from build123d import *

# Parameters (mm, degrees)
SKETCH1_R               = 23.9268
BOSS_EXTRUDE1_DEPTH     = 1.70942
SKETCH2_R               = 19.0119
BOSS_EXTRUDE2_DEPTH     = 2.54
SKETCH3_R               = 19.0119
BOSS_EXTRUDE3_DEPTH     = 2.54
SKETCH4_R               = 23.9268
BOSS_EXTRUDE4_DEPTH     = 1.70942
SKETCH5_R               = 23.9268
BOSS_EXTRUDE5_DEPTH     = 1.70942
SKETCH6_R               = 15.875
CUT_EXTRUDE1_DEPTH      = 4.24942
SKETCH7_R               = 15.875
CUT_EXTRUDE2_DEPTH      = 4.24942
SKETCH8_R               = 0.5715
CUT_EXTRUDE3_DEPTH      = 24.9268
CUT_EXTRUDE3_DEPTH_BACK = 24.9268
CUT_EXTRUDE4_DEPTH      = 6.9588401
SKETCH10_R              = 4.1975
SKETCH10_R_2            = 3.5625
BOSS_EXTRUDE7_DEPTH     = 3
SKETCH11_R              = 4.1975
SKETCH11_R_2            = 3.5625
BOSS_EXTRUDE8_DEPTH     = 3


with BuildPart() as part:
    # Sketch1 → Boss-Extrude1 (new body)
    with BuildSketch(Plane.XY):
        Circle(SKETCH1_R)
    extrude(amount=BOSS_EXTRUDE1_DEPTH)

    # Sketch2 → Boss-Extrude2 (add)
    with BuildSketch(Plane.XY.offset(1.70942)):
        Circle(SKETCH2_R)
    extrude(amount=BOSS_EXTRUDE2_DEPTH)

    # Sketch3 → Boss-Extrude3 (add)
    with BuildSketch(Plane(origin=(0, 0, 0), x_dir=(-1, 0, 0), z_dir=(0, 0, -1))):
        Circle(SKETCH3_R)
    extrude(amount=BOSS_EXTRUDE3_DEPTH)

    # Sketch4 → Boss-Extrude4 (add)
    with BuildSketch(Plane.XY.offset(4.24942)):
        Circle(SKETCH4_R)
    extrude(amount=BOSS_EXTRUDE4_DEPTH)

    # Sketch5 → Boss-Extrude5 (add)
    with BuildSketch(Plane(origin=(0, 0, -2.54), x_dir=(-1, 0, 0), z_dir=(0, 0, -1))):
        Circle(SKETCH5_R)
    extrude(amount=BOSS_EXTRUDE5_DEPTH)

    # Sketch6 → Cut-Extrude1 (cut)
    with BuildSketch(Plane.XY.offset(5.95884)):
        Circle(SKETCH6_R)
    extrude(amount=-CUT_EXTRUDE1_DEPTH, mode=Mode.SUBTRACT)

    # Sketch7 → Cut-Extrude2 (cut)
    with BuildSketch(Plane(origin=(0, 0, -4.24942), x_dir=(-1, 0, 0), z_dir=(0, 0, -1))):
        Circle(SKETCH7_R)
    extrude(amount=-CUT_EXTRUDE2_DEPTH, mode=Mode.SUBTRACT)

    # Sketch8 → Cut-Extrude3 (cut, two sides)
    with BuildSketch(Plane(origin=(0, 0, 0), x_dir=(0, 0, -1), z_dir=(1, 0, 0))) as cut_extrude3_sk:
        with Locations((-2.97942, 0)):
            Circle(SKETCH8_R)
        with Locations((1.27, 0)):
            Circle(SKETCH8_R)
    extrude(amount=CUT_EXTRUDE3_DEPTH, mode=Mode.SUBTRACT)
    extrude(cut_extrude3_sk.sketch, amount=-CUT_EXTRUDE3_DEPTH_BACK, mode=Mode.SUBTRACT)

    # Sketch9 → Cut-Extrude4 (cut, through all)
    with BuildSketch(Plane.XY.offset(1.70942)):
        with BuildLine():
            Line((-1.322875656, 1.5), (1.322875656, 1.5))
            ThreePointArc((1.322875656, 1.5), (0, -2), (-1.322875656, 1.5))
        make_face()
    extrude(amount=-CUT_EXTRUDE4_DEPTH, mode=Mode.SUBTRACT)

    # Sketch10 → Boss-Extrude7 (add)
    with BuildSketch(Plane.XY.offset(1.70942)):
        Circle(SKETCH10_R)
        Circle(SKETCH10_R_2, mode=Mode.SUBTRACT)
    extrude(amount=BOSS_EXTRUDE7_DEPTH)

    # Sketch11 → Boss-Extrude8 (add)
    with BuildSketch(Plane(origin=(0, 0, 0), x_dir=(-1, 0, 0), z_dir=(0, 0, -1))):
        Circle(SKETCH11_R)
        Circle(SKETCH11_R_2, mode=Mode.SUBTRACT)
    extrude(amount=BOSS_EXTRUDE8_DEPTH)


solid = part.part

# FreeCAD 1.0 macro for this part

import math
import FreeCAD as App
import Part
import Sketcher

V = App.Vector
Q = App.Units.Quantity

doc = App.newDocument("Part")
params = doc.addObject("Spreadsheet::Sheet", "Params")
for row, (alias, value) in enumerate([
    ("sketch1_diameter", "1.884 in"),
    ("pad1_length", "0.0673 in"),
    ("sketch2_diameter", "1.497 in"),
    ("pad2_length", "0.1 in"),
    ("sketch3_diameter", "1.497 in"),
    ("pad3_length", "0.1 in"),
    ("sketch4_diameter", "1.884 in"),
    ("pad4_length", "0.0673 in"),
    ("sketch5_diameter", "1.884 in"),
    ("pad5_length", "0.0673 in"),
    ("sketch6_diameter", "1.25 in"),
    ("pocket1_length", "0.1673 in"),
    ("sketch7_diameter", "1.25 in"),
    ("pocket2_length", "0.1673 in"),
    ("sketch8_diameter", "0.045 in"),
    ("pad6_length", "3 mm"),
    ("pad7_length", "3 mm"),
], start=1):
    params.set(f"A{row}", alias)
    params.set(f"B{row}", "=" + value)
    params.setAlias(f"B{row}", alias)

body = doc.addObject("PartDesign::Body", "Body")

# Sketch on XY plane
sketch1 = body.newObject("Sketcher::SketchObject", "Sketch")
sketch1.AttachmentSupport = (doc.getObject("XY_Plane"), [""])
sketch1.MapMode = "FlatFace"
sketch1.addGeometry(Part.Circle(V(0, 0, 0), V(0, 0, 1), 24), False)
sketch1.addConstraint([
    Sketcher.Constraint("Coincident", 0, 3, -1, 1),
    Sketcher.Constraint("Diameter", 0, Q("1.884 in")),
])
sketch1.setExpression("Constraints[1]", "Params.sketch1_diameter")
pad1 = body.newObject("PartDesign::Pad", "Pad")
pad1.Profile = sketch1
pad1.setExpression("Length", "Params.pad1_length")

# Sketch on XY plane
sketch2 = body.newObject("Sketcher::SketchObject", "Sketch001")
sketch2.AttachmentSupport = (doc.getObject("XY_Plane"), [""])
sketch2.MapMode = "FlatFace"
sketch2.AttachmentOffset = App.Placement(V(0, 0, 0.0673 * 25.4), App.Rotation())
sketch2.addGeometry(Part.Circle(V(0, 0, 0), V(0, 0, 1), 19), False)
sketch2.addConstraint([
    Sketcher.Constraint("Coincident", 0, 3, -1, 1),
    Sketcher.Constraint("Diameter", 0, Q("1.497 in")),
])
sketch2.setExpression("Constraints[1]", "Params.sketch2_diameter")
pad2 = body.newObject("PartDesign::Pad", "Pad001")
pad2.Profile = sketch2
pad2.setExpression("Length", "Params.pad2_length")

# Sketch on XY plane
sketch3 = body.newObject("Sketcher::SketchObject", "Sketch002")
sketch3.AttachmentSupport = (doc.getObject("XY_Plane"), [""])
sketch3.MapMode = "FlatFace"
sketch3.addGeometry(Part.Circle(V(0, 0, 0), V(0, 0, 1), 19), False)
sketch3.addConstraint([
    Sketcher.Constraint("Coincident", 0, 3, -1, 1),
    Sketcher.Constraint("Diameter", 0, Q("1.497 in")),
])
sketch3.setExpression("Constraints[1]", "Params.sketch3_diameter")
pad3 = body.newObject("PartDesign::Pad", "Pad002")
pad3.Profile = sketch3
pad3.setExpression("Length", "Params.pad3_length")
pad3.Reversed = True

# Sketch on XY plane
sketch4 = body.newObject("Sketcher::SketchObject", "Sketch003")
sketch4.AttachmentSupport = (doc.getObject("XY_Plane"), [""])
sketch4.MapMode = "FlatFace"
sketch4.AttachmentOffset = App.Placement(V(0, 0, 0.1673 * 25.4), App.Rotation())
sketch4.addGeometry(Part.Circle(V(0, 0, 0), V(0, 0, 1), 24), False)
sketch4.addConstraint([
    Sketcher.Constraint("Coincident", 0, 3, -1, 1),
    Sketcher.Constraint("Diameter", 0, Q("1.884 in")),
])
sketch4.setExpression("Constraints[1]", "Params.sketch4_diameter")
pad4 = body.newObject("PartDesign::Pad", "Pad003")
pad4.Profile = sketch4
pad4.setExpression("Length", "Params.pad4_length")

# Sketch on XY plane
sketch5 = body.newObject("Sketcher::SketchObject", "Sketch004")
sketch5.AttachmentSupport = (doc.getObject("XY_Plane"), [""])
sketch5.MapMode = "FlatFace"
sketch5.AttachmentOffset = App.Placement(V(0, 0, -0.1 * 25.4), App.Rotation())
sketch5.addGeometry(Part.Circle(V(0, 0, 0), V(0, 0, 1), 24), False)
sketch5.addConstraint([
    Sketcher.Constraint("Coincident", 0, 3, -1, 1),
    Sketcher.Constraint("Diameter", 0, Q("1.884 in")),
])
sketch5.setExpression("Constraints[1]", "Params.sketch5_diameter")
pad5 = body.newObject("PartDesign::Pad", "Pad004")
pad5.Profile = sketch5
pad5.setExpression("Length", "Params.pad5_length")
pad5.Reversed = True

# Sketch on XY plane
sketch6 = body.newObject("Sketcher::SketchObject", "Sketch005")
sketch6.AttachmentSupport = (doc.getObject("XY_Plane"), [""])
sketch6.MapMode = "FlatFace"
sketch6.AttachmentOffset = App.Placement(V(0, 0, 0.2346 * 25.4), App.Rotation())
sketch6.addGeometry(Part.Circle(V(0, 0, 0), V(0, 0, 1), 16), False)
sketch6.addConstraint([
    Sketcher.Constraint("Coincident", 0, 3, -1, 1),
    Sketcher.Constraint("Diameter", 0, Q("1.25 in")),
])
sketch6.setExpression("Constraints[1]", "Params.sketch6_diameter")
pocket1 = body.newObject("PartDesign::Pocket", "Pocket")
pocket1.Profile = sketch6
pocket1.setExpression("Length", "Params.pocket1_length")

# Sketch on XY plane
sketch7 = body.newObject("Sketcher::SketchObject", "Sketch006")
sketch7.AttachmentSupport = (doc.getObject("XY_Plane"), [""])
sketch7.MapMode = "FlatFace"
sketch7.AttachmentOffset = App.Placement(V(0, 0, -0.1673 * 25.4), App.Rotation())
sketch7.addGeometry(Part.Circle(V(0, 0, 0), V(0, 0, 1), 16), False)
sketch7.addConstraint([
    Sketcher.Constraint("Coincident", 0, 3, -1, 1),
    Sketcher.Constraint("Diameter", 0, Q("1.25 in")),
])
sketch7.setExpression("Constraints[1]", "Params.sketch7_diameter")
pocket2 = body.newObject("PartDesign::Pocket", "Pocket001")
pocket2.Profile = sketch7
pocket2.setExpression("Length", "Params.pocket2_length")
pocket2.Reversed = True

# Sketch on YZ plane
sketch8 = body.newObject("Sketcher::SketchObject", "Sketch007")
sketch8.AttachmentSupport = (doc.getObject("YZ_Plane"), [""])
sketch8.MapMode = "FlatFace"
sketch8.addGeometry([
    Part.Circle(V(0, 3, 0), V(0, 0, 1), 0.6),
    Part.Circle(V(0, -1.3, 0), V(0, 0, 1), 0.6),
], False)
sketch8.addConstraint([
    Sketcher.Constraint("Equal", 0, 1),
    Sketcher.Constraint("PointOnObject", 0, 3, -2),
    Sketcher.Constraint("PointOnObject", 1, 3, -2),
    Sketcher.Constraint("Diameter", 0, Q("0.045 in")),
    Sketcher.Constraint("DistanceY", 1, 3, -1, 1, Q("0.05 in")),
    Sketcher.Constraint("DistanceY", -1, 1, 0, 3, Q("0.1173 in")),
])
sketch8.setExpression("Constraints[3]", "Params.sketch8_diameter")
pocket3 = body.newObject("PartDesign::Pocket", "Pocket002")
pocket3.Profile = sketch8
pocket3.Type = "ThroughAll"
pocket3.Midplane = True

# Sketch on XY plane
sketch9 = body.newObject("Sketcher::SketchObject", "Sketch008")
sketch9.AttachmentSupport = (doc.getObject("XY_Plane"), [""])
sketch9.MapMode = "FlatFace"
sketch9.AttachmentOffset = App.Placement(V(0, 0, 0.0673 * 25.4), App.Rotation())
sketch9.addGeometry([
    Part.LineSegment(V(1.3, 1.5, 0), V(-1.3, 1.5, 0)),
    Part.ArcOfCircle(Part.Circle(V(0, 0, 0), V(0, 0, 1), 2), math.radians(131), math.radians(409)),
], False)
sketch9.addConstraint([
    Sketcher.Constraint("Coincident", 0, 1, 1, 2),
    Sketcher.Constraint("Coincident", 1, 1, 0, 2),
    Sketcher.Constraint("Horizontal", 0),
    Sketcher.Constraint("Coincident", 1, 3, -1, 1),
    Sketcher.Constraint("Radius", 1, 2.0),
    Sketcher.Constraint("DistanceX", 0, 2, 0, 1, 2.645751),
])
pocket4 = body.newObject("PartDesign::Pocket", "Pocket003")
pocket4.Profile = sketch9
pocket4.Type = "ThroughAll"

# Sketch on XY plane
sketch10 = body.newObject("Sketcher::SketchObject", "Sketch009")
sketch10.AttachmentSupport = (doc.getObject("XY_Plane"), [""])
sketch10.MapMode = "FlatFace"
sketch10.AttachmentOffset = App.Placement(V(0, 0, 0.0673 * 25.4), App.Rotation())
sketch10.addGeometry([
    Part.Circle(V(0, 0, 0), V(0, 0, 1), 4.2),
    Part.Circle(V(0, 0, 0), V(0, 0, 1), 3.6),
], False)
sketch10.addConstraint([
    Sketcher.Constraint("Coincident", 0, 3, -1, 1),
    Sketcher.Constraint("Coincident", 1, 3, -1, 1),
    Sketcher.Constraint("Diameter", 0, 8.395),
    Sketcher.Constraint("Diameter", 1, 7.125),
])
pad6 = body.newObject("PartDesign::Pad", "Pad005")
pad6.Profile = sketch10
pad6.setExpression("Length", "Params.pad6_length")

# Sketch on XY plane
sketch11 = body.newObject("Sketcher::SketchObject", "Sketch010")
sketch11.AttachmentSupport = (doc.getObject("XY_Plane"), [""])
sketch11.MapMode = "FlatFace"
sketch11.addGeometry([
    Part.Circle(V(0, 0, 0), V(0, 0, 1), 4.2),
    Part.Circle(V(0, 0, 0), V(0, 0, 1), 3.6),
], False)
sketch11.addConstraint([
    Sketcher.Constraint("Coincident", 0, 3, -1, 1),
    Sketcher.Constraint("Coincident", 1, 3, -1, 1),
    Sketcher.Constraint("Diameter", 0, 8.395),
    Sketcher.Constraint("Diameter", 1, 7.125),
])
pad7 = body.newObject("PartDesign::Pad", "Pad006")
pad7.Profile = sketch11
pad7.setExpression("Length", "Params.pad7_length")
pad7.Reversed = True

doc.recompute()
